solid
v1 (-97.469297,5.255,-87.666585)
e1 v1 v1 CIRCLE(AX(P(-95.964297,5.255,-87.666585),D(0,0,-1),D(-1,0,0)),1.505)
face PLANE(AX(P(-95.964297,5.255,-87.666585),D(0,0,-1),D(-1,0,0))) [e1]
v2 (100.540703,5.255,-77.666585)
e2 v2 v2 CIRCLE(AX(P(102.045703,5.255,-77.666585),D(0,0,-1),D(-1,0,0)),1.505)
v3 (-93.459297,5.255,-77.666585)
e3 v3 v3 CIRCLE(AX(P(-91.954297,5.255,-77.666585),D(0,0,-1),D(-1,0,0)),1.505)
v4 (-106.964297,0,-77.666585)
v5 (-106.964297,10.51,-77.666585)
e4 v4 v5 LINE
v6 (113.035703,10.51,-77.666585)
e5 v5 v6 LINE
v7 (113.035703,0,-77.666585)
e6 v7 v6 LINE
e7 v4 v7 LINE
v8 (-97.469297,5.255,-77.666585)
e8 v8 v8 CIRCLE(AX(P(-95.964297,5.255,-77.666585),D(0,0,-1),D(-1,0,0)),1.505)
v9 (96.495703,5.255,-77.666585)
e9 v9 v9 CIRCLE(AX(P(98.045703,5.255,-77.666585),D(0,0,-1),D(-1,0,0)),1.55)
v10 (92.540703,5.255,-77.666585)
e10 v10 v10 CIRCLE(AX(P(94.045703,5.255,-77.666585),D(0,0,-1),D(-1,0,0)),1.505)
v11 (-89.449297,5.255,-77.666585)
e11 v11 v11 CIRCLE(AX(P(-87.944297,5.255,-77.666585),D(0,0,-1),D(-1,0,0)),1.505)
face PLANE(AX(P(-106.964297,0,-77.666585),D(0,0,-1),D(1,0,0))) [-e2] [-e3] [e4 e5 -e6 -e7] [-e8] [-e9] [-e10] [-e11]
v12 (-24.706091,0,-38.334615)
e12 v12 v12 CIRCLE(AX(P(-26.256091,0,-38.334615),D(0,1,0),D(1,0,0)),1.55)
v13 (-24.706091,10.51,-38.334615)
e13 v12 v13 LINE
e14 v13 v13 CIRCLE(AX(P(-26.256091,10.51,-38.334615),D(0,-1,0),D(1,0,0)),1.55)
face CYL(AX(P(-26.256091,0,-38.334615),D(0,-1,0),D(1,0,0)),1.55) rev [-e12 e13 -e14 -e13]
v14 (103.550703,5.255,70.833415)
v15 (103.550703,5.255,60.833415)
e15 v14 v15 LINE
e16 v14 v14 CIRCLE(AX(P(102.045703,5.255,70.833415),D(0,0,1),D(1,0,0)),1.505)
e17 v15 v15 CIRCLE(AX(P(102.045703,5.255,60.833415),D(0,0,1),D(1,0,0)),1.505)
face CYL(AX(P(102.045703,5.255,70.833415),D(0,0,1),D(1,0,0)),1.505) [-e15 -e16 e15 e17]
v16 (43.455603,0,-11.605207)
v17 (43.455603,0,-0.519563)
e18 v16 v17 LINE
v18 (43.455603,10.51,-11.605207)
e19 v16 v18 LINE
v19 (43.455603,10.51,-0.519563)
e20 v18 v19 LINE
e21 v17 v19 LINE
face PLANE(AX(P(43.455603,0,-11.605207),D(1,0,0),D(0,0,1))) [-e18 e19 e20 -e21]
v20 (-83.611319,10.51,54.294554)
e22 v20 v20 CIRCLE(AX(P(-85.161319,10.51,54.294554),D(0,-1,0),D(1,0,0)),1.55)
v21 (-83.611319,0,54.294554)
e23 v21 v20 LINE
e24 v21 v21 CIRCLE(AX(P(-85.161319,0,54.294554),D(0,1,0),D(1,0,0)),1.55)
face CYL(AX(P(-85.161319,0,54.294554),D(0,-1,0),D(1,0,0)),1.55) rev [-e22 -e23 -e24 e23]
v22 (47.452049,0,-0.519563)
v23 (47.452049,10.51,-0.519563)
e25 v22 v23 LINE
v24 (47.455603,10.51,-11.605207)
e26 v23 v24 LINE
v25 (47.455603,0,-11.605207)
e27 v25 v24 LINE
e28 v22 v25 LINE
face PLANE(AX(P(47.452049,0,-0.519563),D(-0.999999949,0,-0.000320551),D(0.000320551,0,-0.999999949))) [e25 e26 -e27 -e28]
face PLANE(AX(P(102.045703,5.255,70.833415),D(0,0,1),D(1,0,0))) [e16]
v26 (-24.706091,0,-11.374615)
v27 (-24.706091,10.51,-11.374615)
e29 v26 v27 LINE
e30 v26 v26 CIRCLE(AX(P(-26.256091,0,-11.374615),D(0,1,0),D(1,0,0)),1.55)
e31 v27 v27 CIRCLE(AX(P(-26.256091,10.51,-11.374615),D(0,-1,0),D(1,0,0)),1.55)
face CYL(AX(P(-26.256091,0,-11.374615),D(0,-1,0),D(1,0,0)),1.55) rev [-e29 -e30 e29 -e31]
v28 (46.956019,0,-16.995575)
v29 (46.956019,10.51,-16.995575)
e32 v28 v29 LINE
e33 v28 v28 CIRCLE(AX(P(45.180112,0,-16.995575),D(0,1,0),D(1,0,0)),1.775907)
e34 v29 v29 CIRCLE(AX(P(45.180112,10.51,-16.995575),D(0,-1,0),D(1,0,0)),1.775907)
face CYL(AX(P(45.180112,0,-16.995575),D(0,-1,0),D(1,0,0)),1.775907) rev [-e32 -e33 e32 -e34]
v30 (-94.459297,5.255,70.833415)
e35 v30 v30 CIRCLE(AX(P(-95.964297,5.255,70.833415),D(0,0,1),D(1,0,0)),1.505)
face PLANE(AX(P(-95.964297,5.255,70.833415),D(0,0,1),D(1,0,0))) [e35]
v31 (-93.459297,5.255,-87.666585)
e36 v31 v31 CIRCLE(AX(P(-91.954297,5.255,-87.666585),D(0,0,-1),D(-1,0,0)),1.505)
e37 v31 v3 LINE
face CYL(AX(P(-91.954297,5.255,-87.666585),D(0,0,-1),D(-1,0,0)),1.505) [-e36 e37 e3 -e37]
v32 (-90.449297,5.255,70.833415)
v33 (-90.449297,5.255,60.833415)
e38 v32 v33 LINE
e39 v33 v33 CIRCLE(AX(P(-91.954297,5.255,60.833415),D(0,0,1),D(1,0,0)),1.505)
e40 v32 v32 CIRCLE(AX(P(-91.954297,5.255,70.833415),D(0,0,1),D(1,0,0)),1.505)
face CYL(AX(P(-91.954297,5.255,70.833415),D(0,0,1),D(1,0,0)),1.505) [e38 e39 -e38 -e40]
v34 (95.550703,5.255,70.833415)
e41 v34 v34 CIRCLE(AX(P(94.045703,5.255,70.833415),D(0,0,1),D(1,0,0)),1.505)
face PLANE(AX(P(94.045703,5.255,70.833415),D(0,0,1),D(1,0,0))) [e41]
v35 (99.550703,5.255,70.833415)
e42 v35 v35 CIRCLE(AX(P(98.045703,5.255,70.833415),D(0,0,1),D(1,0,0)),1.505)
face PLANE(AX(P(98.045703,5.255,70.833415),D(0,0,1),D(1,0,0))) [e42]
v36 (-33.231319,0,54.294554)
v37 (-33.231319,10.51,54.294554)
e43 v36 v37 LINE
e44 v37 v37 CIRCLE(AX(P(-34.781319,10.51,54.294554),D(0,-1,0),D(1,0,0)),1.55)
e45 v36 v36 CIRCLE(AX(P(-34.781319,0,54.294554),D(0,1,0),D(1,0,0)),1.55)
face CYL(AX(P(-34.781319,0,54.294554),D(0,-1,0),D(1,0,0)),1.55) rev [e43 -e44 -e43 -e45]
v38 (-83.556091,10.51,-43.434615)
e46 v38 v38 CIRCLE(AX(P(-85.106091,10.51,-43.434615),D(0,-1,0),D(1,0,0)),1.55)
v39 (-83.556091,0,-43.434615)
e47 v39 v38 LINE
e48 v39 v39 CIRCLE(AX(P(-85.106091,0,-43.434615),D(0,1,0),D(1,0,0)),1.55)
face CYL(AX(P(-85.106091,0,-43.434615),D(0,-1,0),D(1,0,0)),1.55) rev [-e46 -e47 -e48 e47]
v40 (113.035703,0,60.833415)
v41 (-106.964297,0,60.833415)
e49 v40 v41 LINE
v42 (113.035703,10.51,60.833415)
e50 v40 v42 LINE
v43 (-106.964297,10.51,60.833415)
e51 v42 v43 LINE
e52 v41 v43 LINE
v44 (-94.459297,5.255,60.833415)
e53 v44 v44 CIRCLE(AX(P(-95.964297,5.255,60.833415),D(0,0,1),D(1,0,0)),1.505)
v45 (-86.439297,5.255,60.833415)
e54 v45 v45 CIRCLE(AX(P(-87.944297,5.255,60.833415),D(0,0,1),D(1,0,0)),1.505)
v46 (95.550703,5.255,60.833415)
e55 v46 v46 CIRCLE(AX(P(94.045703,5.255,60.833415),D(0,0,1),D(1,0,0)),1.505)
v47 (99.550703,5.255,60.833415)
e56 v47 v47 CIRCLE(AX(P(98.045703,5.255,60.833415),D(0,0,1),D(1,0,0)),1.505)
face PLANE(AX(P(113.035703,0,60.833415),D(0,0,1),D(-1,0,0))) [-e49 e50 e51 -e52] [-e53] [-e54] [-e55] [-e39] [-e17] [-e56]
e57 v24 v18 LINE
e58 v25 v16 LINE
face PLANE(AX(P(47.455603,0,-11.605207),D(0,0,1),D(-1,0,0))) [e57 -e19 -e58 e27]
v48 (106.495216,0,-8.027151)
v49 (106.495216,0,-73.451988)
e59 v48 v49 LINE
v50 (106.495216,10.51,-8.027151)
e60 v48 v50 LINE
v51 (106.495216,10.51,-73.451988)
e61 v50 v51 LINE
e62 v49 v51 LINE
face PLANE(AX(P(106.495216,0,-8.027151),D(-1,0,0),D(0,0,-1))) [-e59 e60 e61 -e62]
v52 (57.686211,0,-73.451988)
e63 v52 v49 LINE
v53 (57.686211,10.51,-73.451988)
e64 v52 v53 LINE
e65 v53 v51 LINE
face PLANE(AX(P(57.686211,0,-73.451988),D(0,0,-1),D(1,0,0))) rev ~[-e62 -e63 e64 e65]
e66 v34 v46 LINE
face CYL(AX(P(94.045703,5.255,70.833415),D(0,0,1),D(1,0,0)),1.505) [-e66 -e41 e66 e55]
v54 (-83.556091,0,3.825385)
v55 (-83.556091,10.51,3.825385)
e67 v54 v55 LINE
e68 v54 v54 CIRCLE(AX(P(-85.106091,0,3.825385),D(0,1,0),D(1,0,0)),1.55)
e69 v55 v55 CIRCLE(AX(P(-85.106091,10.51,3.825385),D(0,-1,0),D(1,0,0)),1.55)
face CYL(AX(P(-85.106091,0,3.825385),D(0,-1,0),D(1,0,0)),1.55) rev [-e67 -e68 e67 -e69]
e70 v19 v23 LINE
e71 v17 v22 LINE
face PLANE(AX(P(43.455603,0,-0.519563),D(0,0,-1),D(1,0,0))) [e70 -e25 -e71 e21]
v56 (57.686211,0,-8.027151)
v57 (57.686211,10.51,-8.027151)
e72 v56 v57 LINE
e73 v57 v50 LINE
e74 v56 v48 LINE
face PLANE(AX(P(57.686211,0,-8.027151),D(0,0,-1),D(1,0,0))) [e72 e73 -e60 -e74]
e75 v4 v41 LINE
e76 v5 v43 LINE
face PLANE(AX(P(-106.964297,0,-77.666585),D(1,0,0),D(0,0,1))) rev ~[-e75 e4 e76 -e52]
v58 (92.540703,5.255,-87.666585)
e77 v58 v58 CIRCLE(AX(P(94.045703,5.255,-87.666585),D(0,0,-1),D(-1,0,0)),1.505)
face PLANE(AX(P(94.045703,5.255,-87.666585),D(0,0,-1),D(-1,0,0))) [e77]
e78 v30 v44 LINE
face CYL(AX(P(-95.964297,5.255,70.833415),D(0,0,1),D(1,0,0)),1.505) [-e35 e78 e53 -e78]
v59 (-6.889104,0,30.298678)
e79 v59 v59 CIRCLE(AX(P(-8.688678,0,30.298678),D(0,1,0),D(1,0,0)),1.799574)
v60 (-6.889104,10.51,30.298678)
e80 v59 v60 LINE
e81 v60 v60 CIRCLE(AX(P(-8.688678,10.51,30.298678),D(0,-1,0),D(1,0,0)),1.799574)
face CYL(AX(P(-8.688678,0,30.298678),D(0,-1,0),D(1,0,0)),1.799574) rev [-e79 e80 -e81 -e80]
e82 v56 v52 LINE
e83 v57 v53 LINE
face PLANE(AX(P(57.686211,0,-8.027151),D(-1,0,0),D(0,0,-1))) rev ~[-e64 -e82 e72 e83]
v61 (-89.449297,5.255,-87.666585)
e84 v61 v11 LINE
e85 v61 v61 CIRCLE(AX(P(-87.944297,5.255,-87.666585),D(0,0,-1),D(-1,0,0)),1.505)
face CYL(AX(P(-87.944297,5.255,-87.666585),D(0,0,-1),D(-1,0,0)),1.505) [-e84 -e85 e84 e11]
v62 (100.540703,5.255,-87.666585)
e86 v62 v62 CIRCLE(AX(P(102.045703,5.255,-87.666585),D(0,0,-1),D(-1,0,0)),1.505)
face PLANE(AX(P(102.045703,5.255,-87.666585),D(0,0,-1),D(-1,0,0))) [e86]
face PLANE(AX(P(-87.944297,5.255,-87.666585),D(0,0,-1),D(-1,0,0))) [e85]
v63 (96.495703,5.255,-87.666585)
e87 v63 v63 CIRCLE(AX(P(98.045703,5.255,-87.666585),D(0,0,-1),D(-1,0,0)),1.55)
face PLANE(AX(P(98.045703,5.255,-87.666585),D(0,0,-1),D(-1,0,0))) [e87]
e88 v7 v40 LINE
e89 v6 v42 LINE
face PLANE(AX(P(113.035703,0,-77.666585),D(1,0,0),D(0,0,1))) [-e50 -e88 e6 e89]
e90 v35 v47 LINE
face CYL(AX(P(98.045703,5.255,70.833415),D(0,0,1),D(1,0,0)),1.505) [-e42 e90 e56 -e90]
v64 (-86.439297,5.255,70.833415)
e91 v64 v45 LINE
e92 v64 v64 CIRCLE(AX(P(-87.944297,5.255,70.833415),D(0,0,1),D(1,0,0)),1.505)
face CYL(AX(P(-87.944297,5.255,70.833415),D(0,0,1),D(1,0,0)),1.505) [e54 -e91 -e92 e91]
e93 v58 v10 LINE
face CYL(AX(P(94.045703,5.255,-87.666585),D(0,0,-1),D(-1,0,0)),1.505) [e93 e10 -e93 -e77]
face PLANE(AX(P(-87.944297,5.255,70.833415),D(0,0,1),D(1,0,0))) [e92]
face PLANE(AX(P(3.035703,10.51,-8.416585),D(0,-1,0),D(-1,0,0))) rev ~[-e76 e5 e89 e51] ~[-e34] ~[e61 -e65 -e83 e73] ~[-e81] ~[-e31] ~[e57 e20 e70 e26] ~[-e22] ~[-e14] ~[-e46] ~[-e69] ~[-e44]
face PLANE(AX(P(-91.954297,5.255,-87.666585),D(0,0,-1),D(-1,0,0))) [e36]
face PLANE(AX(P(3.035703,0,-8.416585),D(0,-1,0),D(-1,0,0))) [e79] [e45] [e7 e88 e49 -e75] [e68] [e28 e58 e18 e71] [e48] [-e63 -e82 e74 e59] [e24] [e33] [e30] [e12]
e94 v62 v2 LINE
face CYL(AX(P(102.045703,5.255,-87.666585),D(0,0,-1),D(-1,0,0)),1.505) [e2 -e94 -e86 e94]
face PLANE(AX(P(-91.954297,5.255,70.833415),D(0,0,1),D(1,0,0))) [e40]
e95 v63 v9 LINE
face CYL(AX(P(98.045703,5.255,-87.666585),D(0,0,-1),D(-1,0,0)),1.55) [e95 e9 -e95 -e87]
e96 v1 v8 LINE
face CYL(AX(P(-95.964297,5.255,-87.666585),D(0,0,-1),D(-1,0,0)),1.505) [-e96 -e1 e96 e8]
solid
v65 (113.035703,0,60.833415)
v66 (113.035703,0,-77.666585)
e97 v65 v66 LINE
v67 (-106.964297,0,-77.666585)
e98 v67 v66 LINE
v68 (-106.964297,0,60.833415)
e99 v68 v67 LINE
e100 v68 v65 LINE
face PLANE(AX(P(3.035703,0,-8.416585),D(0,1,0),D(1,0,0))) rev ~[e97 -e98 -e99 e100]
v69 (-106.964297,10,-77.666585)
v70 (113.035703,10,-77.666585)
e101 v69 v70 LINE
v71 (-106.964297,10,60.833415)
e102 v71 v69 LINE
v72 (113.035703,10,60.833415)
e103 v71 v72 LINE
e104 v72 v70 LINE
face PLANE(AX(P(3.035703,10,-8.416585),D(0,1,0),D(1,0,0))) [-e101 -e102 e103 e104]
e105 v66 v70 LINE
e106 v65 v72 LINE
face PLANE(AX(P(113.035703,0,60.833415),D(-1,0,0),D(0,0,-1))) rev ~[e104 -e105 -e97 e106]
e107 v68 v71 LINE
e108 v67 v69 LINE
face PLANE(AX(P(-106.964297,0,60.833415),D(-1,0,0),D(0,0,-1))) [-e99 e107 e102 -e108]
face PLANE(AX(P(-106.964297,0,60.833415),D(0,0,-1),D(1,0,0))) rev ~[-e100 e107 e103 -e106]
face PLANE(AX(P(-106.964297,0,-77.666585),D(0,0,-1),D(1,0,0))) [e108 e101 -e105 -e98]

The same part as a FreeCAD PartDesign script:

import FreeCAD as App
import Part
import Sketcher


def add_polygon(sketch, points):
    """Adds a closed chain of lines whose ends are joined by coincident constraints."""
    first, n = sketch.GeometryCount, len(points)
    for a, b in zip(points, points[1:] + points[:1]):
        sketch.addGeometry(Part.LineSegment(App.Vector(*a, 0), App.Vector(*b, 0)), False)
    for i in range(n):
        sketch.addConstraint(Sketcher.Constraint("Coincident", first + i, 2, first + (i + 1) % n, 1))

doc = App.newDocument("Part")
params = doc.addObject("Spreadsheet::Sheet", "Params")
for row, (alias, value) in enumerate([
    ("sketch1_width", "220 mm"),
    ("sketch1_height", "138.5 mm"),
    ("pad1_length", "10 mm"),
    ("sketch2_width", "220 mm"),
    ("sketch2_height", "138.5 mm"),
    ("pad2_length", "10.51 mm"),
    ("sketch3_diameter", "3.01 mm"),
    ("pad3_length", "16.5 mm"),
    ("sketch5_diameter", "3.1 mm"),
    ("sketch5_diameter2", "3.01 mm"),
    ("pad4_length", "12 mm"),
    ("sketch6_diameter", "3.1 mm"),
    ("sketch6_width", "4 mm"),
], start=1):
    params.set(f"A{row}", alias)
    params.set(f"B{row}", "=" + value)
    params.setAlias(f"B{row}", alias)

body = doc.addObject("PartDesign::Body", "Body")

# Sketch on XZ plane
sketch1 = body.newObject("Sketcher::SketchObject", "Sketch")
sketch1.AttachmentSupport = (doc.getObject("XZ_Plane"), [""])
sketch1.MapMode = "FlatFace"
add_polygon(sketch1, [(-107, -78), (-107, 61), (113, 61), (113, -78)])  # lines 0-3
sketch1.addConstraint(Sketcher.Constraint("Vertical", 0))
sketch1.addConstraint(Sketcher.Constraint("Horizontal", 1))
sketch1.addConstraint(Sketcher.Constraint("Vertical", 2))
sketch1.addConstraint(Sketcher.Constraint("Horizontal", 3))
sketch1.addConstraint(Sketcher.Constraint("DistanceX", 1, 1, 1, 2, 220.0))
sketch1.addConstraint(Sketcher.Constraint("DistanceY", 0, 1, 0, 2, 138.5))
sketch1.addConstraint(Sketcher.Constraint("DistanceX", 0, 2, -1, 1, 106.964297))
sketch1.addConstraint(Sketcher.Constraint("DistanceY", -1, 1, 0, 2, 60.833415))
sketch1.setExpression("Constraints[8]", "Params.sketch1_width")
sketch1.setExpression("Constraints[9]", "Params.sketch1_height")
pad1 = body.newObject("PartDesign::Pad", "Pad")
pad1.Profile = sketch1
pad1.setExpression("Length", "Params.pad1_length")
pad1.Reversed = True
body2 = doc.addObject("PartDesign::Body", "Body001")

# Sketch on XZ plane
sketch2 = body2.newObject("Sketcher::SketchObject", "Sketch001")
sketch2.AttachmentSupport = (doc.getObject("XZ_Plane001"), [""])
sketch2.MapMode = "FlatFace"
add_polygon(sketch2, [(-107, -78), (-107, 61), (113, 61), (113, -78)])  # lines 0-3
sketch2.addConstraint(Sketcher.Constraint("Vertical", 0))
sketch2.addConstraint(Sketcher.Constraint("Horizontal", 1))
sketch2.addConstraint(Sketcher.Constraint("Vertical", 2))
sketch2.addConstraint(Sketcher.Constraint("Horizontal", 3))
sketch2.addConstraint(Sketcher.Constraint("DistanceX", 1, 1, 1, 2, 220.0))
sketch2.addConstraint(Sketcher.Constraint("DistanceY", 0, 1, 0, 2, 138.5))
sketch2.addConstraint(Sketcher.Constraint("DistanceX", 0, 2, -1, 1, 106.964297))
sketch2.addConstraint(Sketcher.Constraint("DistanceY", -1, 1, 0, 2, 60.833415))
sketch2.setExpression("Constraints[8]", "Params.sketch2_width")
sketch2.setExpression("Constraints[9]", "Params.sketch2_height")
pad2 = body2.newObject("PartDesign::Pad", "Pad001")
pad2.Profile = sketch2
pad2.setExpression("Length", "Params.pad2_length")
pad2.Reversed = True

# Sketch on XY plane
sketch3 = body2.newObject("Sketcher::SketchObject", "Sketch002")
sketch3.AttachmentSupport = (doc.getObject("XY_Plane001"), [""])
sketch3.MapMode = "FlatFace"
sketch3.AttachmentOffset = App.Placement(App.Vector(0, 0, 70.833415), App.Rotation())
sketch3.addGeometry(Part.Circle(App.Vector(-96, 5.3, 0), App.Vector(0, 0, 1), 1.5), False)
sketch3.addGeometry(Part.Circle(App.Vector(-92, 5.3, 0), App.Vector(0, 0, 1), 1.5), False)
sketch3.addGeometry(Part.Circle(App.Vector(-87.9, 5.3, 0), App.Vector(0, 0, 1), 1.5), False)
sketch3.addGeometry(Part.Circle(App.Vector(94, 5.3, 0), App.Vector(0, 0, 1), 1.5), False)
sketch3.addGeometry(Part.Circle(App.Vector(98, 5.3, 0), App.Vector(0, 0, 1), 1.5), False)
sketch3.addGeometry(Part.Circle(App.Vector(102, 5.3, 0), App.Vector(0, 0, 1), 1.5), False)
sketch3.addConstraint(Sketcher.Constraint("Equal", 0, 1))
sketch3.addConstraint(Sketcher.Constraint("Equal", 1, 2))
sketch3.addConstraint(Sketcher.Constraint("Equal", 2, 3))
sketch3.addConstraint(Sketcher.Constraint("Equal", 3, 4))
sketch3.addConstraint(Sketcher.Constraint("Equal", 4, 5))
sketch3.addConstraint(Sketcher.Constraint("Horizontal", 0, 3, 1, 3))
sketch3.addConstraint(Sketcher.Constraint("Horizontal", 1, 3, 2, 3))
sketch3.addConstraint(Sketcher.Constraint("Horizontal", 2, 3, 3, 3))
sketch3.addConstraint(Sketcher.Constraint("Horizontal", 3, 3, 4, 3))
sketch3.addConstraint(Sketcher.Constraint("Horizontal", 4, 3, 5, 3))
sketch3.addConstraint(Sketcher.Constraint("Diameter", 0, 3.01))
sketch3.addConstraint(Sketcher.Constraint("DistanceX", 1, 3, 3, 3, 186.0))
sketch3.addConstraint(Sketcher.Constraint("DistanceX", 3, 3, 4, 3, 4.0))
sketch3.addConstraint(Sketcher.Constraint("DistanceX", 4, 3, 5, 3, 4.0))
sketch3.addConstraint(Sketcher.Constraint("DistanceX", 0, 3, 1, 3, 4.01))
sketch3.addConstraint(Sketcher.Constraint("DistanceX", 1, 3, 2, 3, 4.01))
sketch3.addConstraint(Sketcher.Constraint("DistanceY", -1, 1, 0, 3, 5.255))
sketch3.addConstraint(Sketcher.Constraint("DistanceX", 0, 3, -1, 1, 95.964297))
sketch3.setExpression("Constraints[10]", "Params.sketch3_diameter")
pad3 = body2.newObject("PartDesign::Pad", "Pad002")
pad3.Profile = sketch3
pad3.setExpression("Length", "Params.pad3_length")
pad3.Reversed = True

# Sketch on XZ plane
sketch4 = body2.newObject("Sketcher::SketchObject", "Sketch003")
sketch4.AttachmentSupport = (doc.getObject("XZ_Plane001"), [""])
sketch4.MapMode = "FlatFace"
add_polygon(sketch4, [(58, -73), (58, -8), (106, -8), (106, -73)])  # lines 0-3
sketch4.addConstraint(Sketcher.Constraint("Vertical", 0))
sketch4.addConstraint(Sketcher.Constraint("Horizontal", 1))
sketch4.addConstraint(Sketcher.Constraint("Vertical", 2))
sketch4.addConstraint(Sketcher.Constraint("Horizontal", 3))
sketch4.addConstraint(Sketcher.Constraint("DistanceX", 1, 1, 1, 2, 48.809005))
sketch4.addConstraint(Sketcher.Constraint("DistanceY", 0, 1, 0, 2, 65.424837))
sketch4.addConstraint(Sketcher.Constraint("DistanceX", -1, 1, 0, 2, 57.686211))
sketch4.addConstraint(Sketcher.Constraint("DistanceY", 0, 2, -1, 1, 8.027151))
pocket1 = body2.newObject("PartDesign::Pocket", "Pocket")
pocket1.Profile = sketch4
pocket1.Type = "ThroughAll"
pocket1.Midplane = True

# Sketch on XY plane
sketch5 = body2.newObject("Sketcher::SketchObject", "Sketch004")
sketch5.AttachmentSupport = (doc.getObject("XY_Plane001"), [""])
sketch5.MapMode = "FlatFace"
sketch5.AttachmentOffset = App.Placement(App.Vector(0, 0, -87.666585), App.Rotation())
sketch5.addGeometry(Part.Circle(App.Vector(102, 5.3, 0), App.Vector(0, 0, 1), 1.5), False)
sketch5.addGeometry(Part.Circle(App.Vector(98, 5.3, 0), App.Vector(0, 0, 1), 1.6), False)
sketch5.addGeometry(Part.Circle(App.Vector(94, 5.3, 0), App.Vector(0, 0, 1), 1.5), False)
sketch5.addGeometry(Part.Circle(App.Vector(-96, 5.3, 0), App.Vector(0, 0, 1), 1.5), False)
sketch5.addGeometry(Part.Circle(App.Vector(-92, 5.3, 0), App.Vector(0, 0, 1), 1.5), False)
sketch5.addGeometry(Part.Circle(App.Vector(-87.9, 5.3, 0), App.Vector(0, 0, 1), 1.5), False)
sketch5.addConstraint(Sketcher.Constraint("Equal", 0, 2))
sketch5.addConstraint(Sketcher.Constraint("Equal", 2, 3))
sketch5.addConstraint(Sketcher.Constraint("Equal", 3, 4))
sketch5.addConstraint(Sketcher.Constraint("Equal", 4, 5))
sketch5.addConstraint(Sketcher.Constraint("Horizontal", 0, 3, 1, 3))
sketch5.addConstraint(Sketcher.Constraint("Horizontal", 1, 3, 2, 3))
sketch5.addConstraint(Sketcher.Constraint("Horizontal", 2, 3, 3, 3))
sketch5.addConstraint(Sketcher.Constraint("Horizontal", 3, 3, 4, 3))
sketch5.addConstraint(Sketcher.Constraint("Horizontal", 4, 3, 5, 3))
sketch5.addConstraint(Sketcher.Constraint("Diameter", 1, 3.1))
sketch5.addConstraint(Sketcher.Constraint("Diameter", 0, 3.01))
sketch5.addConstraint(Sketcher.Constraint("DistanceX", 1, 3, 0, 3, 4.0))
sketch5.addConstraint(Sketcher.Constraint("DistanceX", 2, 3, 1, 3, 4.0))
sketch5.addConstraint(Sketcher.Constraint("DistanceX", 4, 3, 2, 3, 186.0))
sketch5.addConstraint(Sketcher.Constraint("DistanceX", 3, 3, 2, 3, 190.01))
sketch5.addConstraint(Sketcher.Constraint("DistanceX", 4, 3, 5, 3, 4.01))
sketch5.addConstraint(Sketcher.Constraint("DistanceY", -1, 1, 0, 3, 5.255))
sketch5.addConstraint(Sketcher.Constraint("DistanceX", -1, 1, 0, 3, 102.045703))
sketch5.setExpression("Constraints[9]", "Params.sketch5_diameter")
sketch5.setExpression("Constraints[10]", "Params.sketch5_diameter2")
pad4 = body2.newObject("PartDesign::Pad", "Pad003")
pad4.Profile = sketch5
pad4.setExpression("Length", "Params.pad4_length")

# Sketch on XZ plane
sketch6 = body2.newObject("Sketcher::SketchObject", "Sketch005")
sketch6.AttachmentSupport = (doc.getObject("XZ_Plane001"), [""])
sketch6.MapMode = "FlatFace"
sketch6.addGeometry(Part.Circle(App.Vector(-85.2, 54.3, 0), App.Vector(0, 0, 1), 1.6), False)  # 0
sketch6.addGeometry(Part.Circle(App.Vector(-34.8, 54.3, 0), App.Vector(0, 0, 1), 1.6), False)  # 1
sketch6.addGeometry(Part.Circle(App.Vector(-85.1, 3.8, 0), App.Vector(0, 0, 1), 1.6), False)  # 2
sketch6.addGeometry(Part.Circle(App.Vector(-26.3, -11.4, 0), App.Vector(0, 0, 1), 1.6), False)  # 3
sketch6.addGeometry(Part.Circle(App.Vector(-26.3, -38.3, 0), App.Vector(0, 0, 1), 1.6), False)  # 4
sketch6.addGeometry(Part.Circle(App.Vector(-85.1, -43.4, 0), App.Vector(0, 0, 1), 1.6), False)  # 5
sketch6.addGeometry(Part.Circle(App.Vector(45.2, -17, 0), App.Vector(0, 0, 1), 1.8), False)  # 6
sketch6.addGeometry(Part.Circle(App.Vector(-8.7, 30.3, 0), App.Vector(0, 0, 1), 1.8), False)  # 7
add_polygon(sketch6, [(43.5, -0.5), (47.5, -0.5), (47.5, -11.6), (43.5, -11.6)])  # lines 8-11
sketch6.addConstraint(Sketcher.Constraint("Horizontal", 8))
sketch6.addConstraint(Sketcher.Constraint("Horizontal", 10))
sketch6.addConstraint(Sketcher.Constraint("Vertical", 11))
sketch6.addConstraint(Sketcher.Constraint("Equal", 0, 1))
sketch6.addConstraint(Sketcher.Constraint("Equal", 1, 2))
sketch6.addConstraint(Sketcher.Constraint("Equal", 2, 3))
sketch6.addConstraint(Sketcher.Constraint("Equal", 3, 4))
sketch6.addConstraint(Sketcher.Constraint("Equal", 4, 5))
sketch6.addConstraint(Sketcher.Constraint("Horizontal", 0, 3, 1, 3))
sketch6.addConstraint(Sketcher.Constraint("Vertical", 3, 3, 4, 3))
sketch6.addConstraint(Sketcher.Constraint("Vertical", 2, 3, 5, 3))
sketch6.addConstraint(Sketcher.Constraint("Diameter", 0, 3.1))
sketch6.addConstraint(Sketcher.Constraint("DistanceX", 10, 2, 10, 1, 4.0))
sketch6.addConstraint(Sketcher.Constraint("DistanceY", 3, 3, 2, 3, 15.2))
sketch6.addConstraint(Sketcher.Constraint("DistanceY", 5, 3, 4, 3, 5.1))
sketch6.addConstraint(Sketcher.Constraint("Diameter", 7, 3.599148))
sketch6.addConstraint(Sketcher.Constraint("DistanceX", 0, 3, 1, 3, 50.38))
sketch6.addConstraint(Sketcher.Constraint("DistanceX", 2, 3, 3, 3, 58.85))
sketch6.addConstraint(Sketcher.Constraint("DistanceY", 4, 3, 3, 3, 26.96))
sketch6.addConstraint(Sketcher.Constraint("Diameter", 6, 3.551815))
sketch6.addConstraint(Sketcher.Constraint("DistanceX", 8, 1, 8, 2, 3.996446))
sketch6.addConstraint(Sketcher.Constraint("DistanceY", 11, 1, 11, 2, 11.085644))
sketch6.addConstraint(Sketcher.Constraint("DistanceX", 0, 3, -1, 1, 85.161319))
sketch6.addConstraint(Sketcher.Constraint("DistanceX", 2, 3, -1, 1, 85.106091))
sketch6.addConstraint(Sketcher.Constraint("DistanceX", 7, 3, -1, 1, 8.688678))
sketch6.addConstraint(Sketcher.Constraint("DistanceX", -1, 1, 8, 2, 47.452049))
sketch6.addConstraint(Sketcher.Constraint("DistanceY", 2, 3, 0, 3, 50.469169))
sketch6.addConstraint(Sketcher.Constraint("DistanceY", 6, 3, 3, 3, 5.62096))
sketch6.addConstraint(Sketcher.Constraint("DistanceX", 1, 3, 6, 3, 79.961431))
sketch6.addConstraint(Sketcher.Constraint("DistanceY", 6, 3, 8, 2, 16.476012))
sketch6.addConstraint(Sketcher.Constraint("DistanceY", 8, 2, 7, 3, 30.818241))
sketch6.addConstraint(Sketcher.Constraint("DistanceY", -1, 1, 0, 3, 54.294554))
sketch6.setExpression("Constraints[15]", "Params.sketch6_diameter")
sketch6.setExpression("Constraints[16]", "Params.sketch6_width")
pocket2 = body2.newObject("PartDesign::Pocket", "Pocket001")
pocket2.Profile = sketch6
pocket2.Type = "ThroughAll"
pocket2.Midplane = True

doc.recompute()
